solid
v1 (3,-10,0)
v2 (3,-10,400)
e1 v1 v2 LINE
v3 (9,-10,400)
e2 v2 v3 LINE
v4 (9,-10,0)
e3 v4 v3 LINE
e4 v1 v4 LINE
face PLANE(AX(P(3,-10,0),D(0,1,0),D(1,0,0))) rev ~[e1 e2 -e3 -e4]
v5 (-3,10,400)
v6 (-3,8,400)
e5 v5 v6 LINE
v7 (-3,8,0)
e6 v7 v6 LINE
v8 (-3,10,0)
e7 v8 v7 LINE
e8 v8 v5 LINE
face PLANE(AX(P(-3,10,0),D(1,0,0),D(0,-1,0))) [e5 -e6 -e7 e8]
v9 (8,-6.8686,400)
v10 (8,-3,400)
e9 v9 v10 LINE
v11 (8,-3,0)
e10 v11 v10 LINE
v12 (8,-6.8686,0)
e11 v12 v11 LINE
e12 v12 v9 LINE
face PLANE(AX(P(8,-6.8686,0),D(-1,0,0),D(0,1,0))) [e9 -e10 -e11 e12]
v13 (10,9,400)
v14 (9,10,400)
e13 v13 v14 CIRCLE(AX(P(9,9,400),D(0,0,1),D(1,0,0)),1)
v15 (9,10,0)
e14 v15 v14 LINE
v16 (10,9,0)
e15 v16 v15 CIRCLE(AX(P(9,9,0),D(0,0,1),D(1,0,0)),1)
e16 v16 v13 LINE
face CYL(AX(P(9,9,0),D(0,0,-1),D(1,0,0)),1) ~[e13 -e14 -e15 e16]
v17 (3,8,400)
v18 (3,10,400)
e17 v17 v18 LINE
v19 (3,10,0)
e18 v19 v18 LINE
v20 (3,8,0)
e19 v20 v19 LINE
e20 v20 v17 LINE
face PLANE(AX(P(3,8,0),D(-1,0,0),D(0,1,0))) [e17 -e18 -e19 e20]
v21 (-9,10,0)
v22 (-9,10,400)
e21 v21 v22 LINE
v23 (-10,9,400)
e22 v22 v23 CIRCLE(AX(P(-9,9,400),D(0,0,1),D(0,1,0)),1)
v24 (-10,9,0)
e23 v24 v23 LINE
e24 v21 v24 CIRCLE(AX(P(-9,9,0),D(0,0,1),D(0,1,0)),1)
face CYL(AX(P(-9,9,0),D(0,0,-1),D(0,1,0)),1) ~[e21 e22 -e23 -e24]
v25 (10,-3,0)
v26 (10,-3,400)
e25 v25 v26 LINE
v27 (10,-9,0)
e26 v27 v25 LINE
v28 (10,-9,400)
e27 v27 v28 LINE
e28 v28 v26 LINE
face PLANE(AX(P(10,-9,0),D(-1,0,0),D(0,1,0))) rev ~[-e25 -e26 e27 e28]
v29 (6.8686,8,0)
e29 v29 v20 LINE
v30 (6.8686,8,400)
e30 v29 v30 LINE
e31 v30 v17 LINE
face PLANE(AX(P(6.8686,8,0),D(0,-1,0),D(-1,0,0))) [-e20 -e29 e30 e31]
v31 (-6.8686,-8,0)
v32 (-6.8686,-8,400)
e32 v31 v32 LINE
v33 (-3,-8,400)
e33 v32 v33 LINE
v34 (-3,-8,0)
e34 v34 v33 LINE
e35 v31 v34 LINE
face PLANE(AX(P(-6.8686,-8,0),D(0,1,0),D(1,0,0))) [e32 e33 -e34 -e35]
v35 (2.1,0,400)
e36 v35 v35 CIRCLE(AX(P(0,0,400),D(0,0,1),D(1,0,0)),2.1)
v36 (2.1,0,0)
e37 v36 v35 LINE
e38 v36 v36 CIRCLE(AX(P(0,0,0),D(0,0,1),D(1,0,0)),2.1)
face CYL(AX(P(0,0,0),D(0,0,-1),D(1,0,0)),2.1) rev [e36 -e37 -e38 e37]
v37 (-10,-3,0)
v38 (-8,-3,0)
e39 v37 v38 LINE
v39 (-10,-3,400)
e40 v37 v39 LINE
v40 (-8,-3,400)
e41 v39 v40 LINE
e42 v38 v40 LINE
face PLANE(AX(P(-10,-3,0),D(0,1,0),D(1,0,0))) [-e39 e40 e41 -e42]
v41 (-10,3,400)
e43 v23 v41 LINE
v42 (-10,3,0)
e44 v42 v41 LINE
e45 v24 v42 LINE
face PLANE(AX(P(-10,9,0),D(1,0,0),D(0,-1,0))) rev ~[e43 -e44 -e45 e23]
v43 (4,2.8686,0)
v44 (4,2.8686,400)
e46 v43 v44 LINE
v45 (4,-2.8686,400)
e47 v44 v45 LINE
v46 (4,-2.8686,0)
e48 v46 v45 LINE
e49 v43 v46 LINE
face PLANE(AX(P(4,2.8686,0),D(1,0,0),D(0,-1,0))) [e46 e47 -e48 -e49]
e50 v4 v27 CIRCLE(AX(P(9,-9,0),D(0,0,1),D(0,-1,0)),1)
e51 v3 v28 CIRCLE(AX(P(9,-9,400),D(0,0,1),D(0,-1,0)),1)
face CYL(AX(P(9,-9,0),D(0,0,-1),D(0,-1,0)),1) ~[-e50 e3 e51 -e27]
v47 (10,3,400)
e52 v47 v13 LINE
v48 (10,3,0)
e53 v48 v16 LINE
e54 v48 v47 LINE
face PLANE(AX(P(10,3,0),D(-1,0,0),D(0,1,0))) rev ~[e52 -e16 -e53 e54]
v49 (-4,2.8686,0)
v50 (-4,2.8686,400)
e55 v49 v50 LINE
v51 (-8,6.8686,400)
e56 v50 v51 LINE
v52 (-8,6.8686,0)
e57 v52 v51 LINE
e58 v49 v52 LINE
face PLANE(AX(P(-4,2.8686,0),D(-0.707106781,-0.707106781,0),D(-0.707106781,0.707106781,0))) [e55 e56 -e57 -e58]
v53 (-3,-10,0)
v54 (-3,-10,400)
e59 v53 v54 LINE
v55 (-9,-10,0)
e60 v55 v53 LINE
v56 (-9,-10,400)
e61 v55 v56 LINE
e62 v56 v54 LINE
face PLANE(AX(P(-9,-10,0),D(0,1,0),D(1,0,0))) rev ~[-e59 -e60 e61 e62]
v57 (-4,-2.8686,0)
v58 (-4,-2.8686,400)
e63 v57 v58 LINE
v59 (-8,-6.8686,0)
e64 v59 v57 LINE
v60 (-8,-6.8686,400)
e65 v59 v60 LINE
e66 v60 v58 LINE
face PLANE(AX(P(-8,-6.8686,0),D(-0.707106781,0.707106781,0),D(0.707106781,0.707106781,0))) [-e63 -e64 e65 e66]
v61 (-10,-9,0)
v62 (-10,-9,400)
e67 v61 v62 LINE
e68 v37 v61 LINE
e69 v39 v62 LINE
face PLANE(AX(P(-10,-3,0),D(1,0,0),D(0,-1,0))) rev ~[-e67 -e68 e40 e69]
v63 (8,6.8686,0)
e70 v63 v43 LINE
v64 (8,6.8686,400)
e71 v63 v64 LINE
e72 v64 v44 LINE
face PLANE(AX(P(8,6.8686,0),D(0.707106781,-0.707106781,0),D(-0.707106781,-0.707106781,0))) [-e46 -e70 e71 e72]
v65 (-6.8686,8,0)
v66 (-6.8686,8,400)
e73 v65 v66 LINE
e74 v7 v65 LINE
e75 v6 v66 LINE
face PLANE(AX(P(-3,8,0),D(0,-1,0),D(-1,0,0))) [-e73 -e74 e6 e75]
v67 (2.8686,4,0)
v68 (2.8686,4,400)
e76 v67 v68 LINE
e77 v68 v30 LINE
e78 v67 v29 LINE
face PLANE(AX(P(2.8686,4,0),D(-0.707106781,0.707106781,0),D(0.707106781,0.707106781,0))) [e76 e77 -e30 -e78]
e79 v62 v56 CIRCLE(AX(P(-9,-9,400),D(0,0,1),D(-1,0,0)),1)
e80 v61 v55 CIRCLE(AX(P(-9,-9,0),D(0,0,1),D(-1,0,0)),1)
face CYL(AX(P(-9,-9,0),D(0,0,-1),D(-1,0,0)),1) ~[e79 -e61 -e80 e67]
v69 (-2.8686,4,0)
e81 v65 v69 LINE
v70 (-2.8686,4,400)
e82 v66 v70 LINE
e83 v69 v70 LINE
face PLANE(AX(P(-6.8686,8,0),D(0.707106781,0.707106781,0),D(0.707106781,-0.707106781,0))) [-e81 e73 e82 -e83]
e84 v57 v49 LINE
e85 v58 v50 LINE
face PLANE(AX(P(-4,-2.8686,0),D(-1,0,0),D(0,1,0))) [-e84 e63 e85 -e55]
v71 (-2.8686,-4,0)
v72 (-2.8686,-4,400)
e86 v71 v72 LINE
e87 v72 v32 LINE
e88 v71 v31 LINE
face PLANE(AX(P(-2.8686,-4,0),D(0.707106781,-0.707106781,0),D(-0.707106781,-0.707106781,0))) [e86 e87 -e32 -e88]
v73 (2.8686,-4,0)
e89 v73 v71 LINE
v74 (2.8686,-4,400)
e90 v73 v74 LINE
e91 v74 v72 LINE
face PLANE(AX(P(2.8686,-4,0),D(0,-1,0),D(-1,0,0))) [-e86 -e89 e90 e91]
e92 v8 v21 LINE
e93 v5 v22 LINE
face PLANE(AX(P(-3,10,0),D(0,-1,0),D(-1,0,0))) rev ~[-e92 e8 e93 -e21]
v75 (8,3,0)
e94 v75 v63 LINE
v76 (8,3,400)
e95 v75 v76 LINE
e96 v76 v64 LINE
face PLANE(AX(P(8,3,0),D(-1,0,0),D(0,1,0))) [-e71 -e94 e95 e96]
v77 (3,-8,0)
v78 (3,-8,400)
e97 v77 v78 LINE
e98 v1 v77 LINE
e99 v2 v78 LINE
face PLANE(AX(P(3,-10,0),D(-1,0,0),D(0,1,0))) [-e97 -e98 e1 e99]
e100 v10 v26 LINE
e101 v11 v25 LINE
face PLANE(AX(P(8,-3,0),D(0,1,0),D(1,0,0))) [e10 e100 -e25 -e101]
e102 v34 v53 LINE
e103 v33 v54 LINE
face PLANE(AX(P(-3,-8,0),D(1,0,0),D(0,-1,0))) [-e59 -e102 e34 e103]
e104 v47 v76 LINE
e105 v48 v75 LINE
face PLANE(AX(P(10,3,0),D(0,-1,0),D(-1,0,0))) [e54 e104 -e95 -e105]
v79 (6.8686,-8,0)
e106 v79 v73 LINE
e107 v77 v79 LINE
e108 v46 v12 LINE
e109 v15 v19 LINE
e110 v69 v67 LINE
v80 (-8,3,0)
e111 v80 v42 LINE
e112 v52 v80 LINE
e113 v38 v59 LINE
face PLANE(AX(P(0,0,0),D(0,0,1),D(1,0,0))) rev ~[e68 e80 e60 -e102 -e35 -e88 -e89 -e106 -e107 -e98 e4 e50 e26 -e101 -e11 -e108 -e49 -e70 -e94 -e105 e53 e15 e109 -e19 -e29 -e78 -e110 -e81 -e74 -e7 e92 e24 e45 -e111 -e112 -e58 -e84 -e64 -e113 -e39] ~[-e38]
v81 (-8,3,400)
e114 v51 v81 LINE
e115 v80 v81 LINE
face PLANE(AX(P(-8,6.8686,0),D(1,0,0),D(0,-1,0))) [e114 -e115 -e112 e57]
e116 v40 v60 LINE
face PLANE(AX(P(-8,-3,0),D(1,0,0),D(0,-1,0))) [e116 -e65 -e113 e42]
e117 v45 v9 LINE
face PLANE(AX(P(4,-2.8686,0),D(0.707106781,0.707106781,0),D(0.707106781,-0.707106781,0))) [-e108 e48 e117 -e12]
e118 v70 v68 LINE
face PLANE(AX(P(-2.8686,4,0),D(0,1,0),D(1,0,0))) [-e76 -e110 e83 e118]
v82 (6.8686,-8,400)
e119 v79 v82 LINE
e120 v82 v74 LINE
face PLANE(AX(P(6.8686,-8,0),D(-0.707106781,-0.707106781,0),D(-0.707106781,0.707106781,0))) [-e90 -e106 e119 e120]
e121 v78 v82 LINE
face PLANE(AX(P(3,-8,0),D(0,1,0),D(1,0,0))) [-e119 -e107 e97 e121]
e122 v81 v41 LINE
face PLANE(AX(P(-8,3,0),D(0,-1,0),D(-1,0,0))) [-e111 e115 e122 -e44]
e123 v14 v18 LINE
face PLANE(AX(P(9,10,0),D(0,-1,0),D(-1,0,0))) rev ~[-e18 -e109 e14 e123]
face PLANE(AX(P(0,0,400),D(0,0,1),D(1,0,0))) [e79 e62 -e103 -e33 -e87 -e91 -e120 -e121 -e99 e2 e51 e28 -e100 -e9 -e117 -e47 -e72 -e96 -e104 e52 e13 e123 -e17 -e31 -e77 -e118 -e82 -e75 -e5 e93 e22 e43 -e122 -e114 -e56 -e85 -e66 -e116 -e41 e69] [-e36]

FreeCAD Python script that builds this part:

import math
import FreeCAD as App
import Part
import Sketcher
from FreeCAD import Vector
Q = App.Units.Quantity

doc = App.newDocument("Part")
body = doc.addObject("PartDesign::Body", "Body")

sketch1 = doc.addObject("Sketcher::SketchObject", "Sketch")
body.addObject(sketch1)
sketch1.AttachmentSupport = (doc.XY_Plane, [""])
sketch1.MapMode = "FlatFace"
sketch1.addGeometry([
    Part.LineSegment(Vector(8, 3, 0), Vector(10, 3, 0)),
    Part.LineSegment(Vector(10, 3, 0), Vector(10, 9, 0)),
    Part.ArcOfCircle(Part.Circle(Vector(9, 9, 0), Vector(0, 0, 1), 1), math.radians(0), math.radians(90)),
    Part.LineSegment(Vector(9, 10, 0), Vector(3, 10, 0)),
    Part.LineSegment(Vector(3, 10, 0), Vector(3, 8, 0)),
    Part.LineSegment(Vector(3, 8, 0), Vector(6.9, 8, 0)),
    Part.LineSegment(Vector(6.9, 8, 0), Vector(2.9, 4, 0)),
    Part.LineSegment(Vector(2.9, 4, 0), Vector(-2.9, 4, 0)),
    Part.LineSegment(Vector(-2.9, 4, 0), Vector(-6.9, 8, 0)),
    Part.LineSegment(Vector(-6.9, 8, 0), Vector(-3, 8, 0)),
    Part.LineSegment(Vector(-3, 8, 0), Vector(-3, 10, 0)),
    Part.LineSegment(Vector(-3, 10, 0), Vector(-9, 10, 0)),
    Part.ArcOfCircle(Part.Circle(Vector(-9, 9, 0), Vector(0, 0, 1), 1), math.radians(90), math.radians(180)),
    Part.LineSegment(Vector(-10, 9, 0), Vector(-10, 3, 0)),
    Part.LineSegment(Vector(-10, 3, 0), Vector(-8, 3, 0)),
    Part.LineSegment(Vector(-8, 3, 0), Vector(-8, 6.9, 0)),
    Part.LineSegment(Vector(-8, 6.9, 0), Vector(-4, 2.9, 0)),
    Part.LineSegment(Vector(-4, 2.9, 0), Vector(-4, -2.9, 0)),
    Part.LineSegment(Vector(-4, -2.9, 0), Vector(-8, -6.9, 0)),
    Part.LineSegment(Vector(-8, -6.9, 0), Vector(-8, -3, 0)),
    Part.LineSegment(Vector(-8, -3, 0), Vector(-10, -3, 0)),
    Part.LineSegment(Vector(-10, -3, 0), Vector(-10, -9, 0)),
    Part.ArcOfCircle(Part.Circle(Vector(-9, -9, 0), Vector(0, 0, 1), 1), math.radians(180), math.radians(270)),
    Part.LineSegment(Vector(-9, -10, 0), Vector(-3, -10, 0)),
    Part.LineSegment(Vector(-3, -10, 0), Vector(-3, -8, 0)),
    Part.LineSegment(Vector(-3, -8, 0), Vector(-6.9, -8, 0)),
    Part.LineSegment(Vector(-6.9, -8, 0), Vector(-2.9, -4, 0)),
    Part.LineSegment(Vector(-2.9, -4, 0), Vector(2.9, -4, 0)),
    Part.LineSegment(Vector(2.9, -4, 0), Vector(6.9, -8, 0)),
    Part.LineSegment(Vector(6.9, -8, 0), Vector(3, -8, 0)),
    Part.LineSegment(Vector(3, -8, 0), Vector(3, -10, 0)),
    Part.LineSegment(Vector(3, -10, 0), Vector(9, -10, 0)),
    Part.ArcOfCircle(Part.Circle(Vector(9, -9, 0), Vector(0, 0, 1), 1), math.radians(-90), math.radians(0)),
    Part.LineSegment(Vector(10, -9, 0), Vector(10, -3, 0)),
    Part.LineSegment(Vector(10, -3, 0), Vector(8, -3, 0)),
    Part.LineSegment(Vector(8, -3, 0), Vector(8, -6.9, 0)),
    Part.LineSegment(Vector(8, -6.9, 0), Vector(4, -2.9, 0)),
    Part.LineSegment(Vector(4, -2.9, 0), Vector(4, 2.9, 0)),
    Part.LineSegment(Vector(4, 2.9, 0), Vector(8, 6.9, 0)),
    Part.LineSegment(Vector(8, 6.9, 0), Vector(8, 3, 0)),
    Part.Circle(Vector(0, 0, 0), Vector(0, 0, 1), 2.1),
], False)
sketch1.addConstraint([
    Sketcher.Constraint("Coincident", 0, 2, 1, 1),
    Sketcher.Constraint("Tangent", 1, 2, 2, 1),
    Sketcher.Constraint("Tangent", 2, 2, 3, 1),
    Sketcher.Constraint("Coincident", 3, 2, 4, 1),
    Sketcher.Constraint("Coincident", 4, 2, 5, 1),
    Sketcher.Constraint("Coincident", 5, 2, 6, 1),
    Sketcher.Constraint("Coincident", 6, 2, 7, 1),
    Sketcher.Constraint("Coincident", 7, 2, 8, 1),
    Sketcher.Constraint("Coincident", 8, 2, 9, 1),
    Sketcher.Constraint("Coincident", 9, 2, 10, 1),
    Sketcher.Constraint("Coincident", 10, 2, 11, 1),
    Sketcher.Constraint("Tangent", 11, 2, 12, 1),
    Sketcher.Constraint("Tangent", 12, 2, 13, 1),
    Sketcher.Constraint("Coincident", 13, 2, 14, 1),
    Sketcher.Constraint("Coincident", 14, 2, 15, 1),
    Sketcher.Constraint("Coincident", 15, 2, 16, 1),
    Sketcher.Constraint("Coincident", 16, 2, 17, 1),
    Sketcher.Constraint("Coincident", 17, 2, 18, 1),
    Sketcher.Constraint("Coincident", 18, 2, 19, 1),
    Sketcher.Constraint("Coincident", 19, 2, 20, 1),
    Sketcher.Constraint("Coincident", 20, 2, 21, 1),
    Sketcher.Constraint("Tangent", 21, 2, 22, 1),
    Sketcher.Constraint("Tangent", 22, 2, 23, 1),
    Sketcher.Constraint("Coincident", 23, 2, 24, 1),
    Sketcher.Constraint("Coincident", 24, 2, 25, 1),
    Sketcher.Constraint("Coincident", 25, 2, 26, 1),
    Sketcher.Constraint("Coincident", 26, 2, 27, 1),
    Sketcher.Constraint("Coincident", 27, 2, 28, 1),
    Sketcher.Constraint("Coincident", 28, 2, 29, 1),
    Sketcher.Constraint("Coincident", 29, 2, 30, 1),
    Sketcher.Constraint("Coincident", 30, 2, 31, 1),
    Sketcher.Constraint("Tangent", 31, 2, 32, 1),
    Sketcher.Constraint("Tangent", 32, 2, 33, 1),
    Sketcher.Constraint("Coincident", 33, 2, 34, 1),
    Sketcher.Constraint("Coincident", 34, 2, 35, 1),
    Sketcher.Constraint("Coincident", 35, 2, 36, 1),
    Sketcher.Constraint("Coincident", 36, 2, 37, 1),
    Sketcher.Constraint("Coincident", 37, 2, 38, 1),
    Sketcher.Constraint("Coincident", 38, 2, 39, 1),
    Sketcher.Constraint("Coincident", 39, 2, 0, 1),
    Sketcher.Constraint("Horizontal", 0),
    Sketcher.Constraint("Vertical", 1),
    Sketcher.Constraint("Horizontal", 3),
    Sketcher.Constraint("Vertical", 4),
    Sketcher.Constraint("Horizontal", 5),
    Sketcher.Constraint("Horizontal", 7),
    Sketcher.Constraint("Horizontal", 9),
    Sketcher.Constraint("Vertical", 10),
    Sketcher.Constraint("Horizontal", 11),
    Sketcher.Constraint("Vertical", 13),
    Sketcher.Constraint("Horizontal", 14),
    Sketcher.Constraint("Vertical", 15),
    Sketcher.Constraint("Vertical", 17),
    Sketcher.Constraint("Vertical", 19),
    Sketcher.Constraint("Horizontal", 20),
    Sketcher.Constraint("Vertical", 21),
    Sketcher.Constraint("Horizontal", 23),
    Sketcher.Constraint("Vertical", 24),
    Sketcher.Constraint("Horizontal", 25),
    Sketcher.Constraint("Horizontal", 27),
    Sketcher.Constraint("Horizontal", 29),
    Sketcher.Constraint("Vertical", 30),
    Sketcher.Constraint("Horizontal", 31),
    Sketcher.Constraint("Vertical", 33),
    Sketcher.Constraint("Horizontal", 34),
    Sketcher.Constraint("Vertical", 35),
    Sketcher.Constraint("Vertical", 37),
    Sketcher.Constraint("Vertical", 39),
    Sketcher.Constraint("Coincident", 40, 3, -1, 1),
    Sketcher.Constraint("Equal", 2, 12),
    Sketcher.Constraint("Equal", 12, 22),
    Sketcher.Constraint("Equal", 22, 32),
    Sketcher.Constraint("Symmetric", 2, 3, 22, 3, -1, 1),
    Sketcher.Constraint("Symmetric", 12, 3, 32, 3, -1, 1),
    Sketcher.Constraint("Symmetric", 4, 2, 24, 2, -1, 1),
    Sketcher.Constraint("Symmetric", 6, 2, 26, 2, -1, 1),
    Sketcher.Constraint("Symmetric", 8, 2, 28, 2, -1, 1),
    Sketcher.Constraint("Symmetric", 14, 2, 34, 2, -1, 1),
    Sketcher.Constraint("Symmetric", 16, 2, 36, 2, -1, 1),
    Sketcher.Constraint("Symmetric", 18, 2, 38, 2, -1, 1),
    Sketcher.Constraint("Symmetric", 2, 3, 12, 3, -2),
    Sketcher.Constraint("Symmetric", 5, 2, 8, 2, -2),
    Sketcher.Constraint("Symmetric", 19, 2, 34, 2, -2),
    Sketcher.Constraint("Perpendicular", 6, 8),
    Sketcher.Constraint("Parallel", 8, 16),
    Sketcher.Constraint("Perpendicular", 16, 18),
    Sketcher.Constraint("Parallel", 18, 26),
    Sketcher.Constraint("Perpendicular", 26, 28),
    Sketcher.Constraint("Parallel", 28, 36),
    Sketcher.Constraint("Perpendicular", 36, 38),
    Sketcher.Constraint("Horizontal", 0, 2, 13, 2),
    Sketcher.Constraint("Horizontal", 18, 2, 35, 2),
    Sketcher.Constraint("Horizontal", 17, 2, 36, 2),
    Sketcher.Constraint("Vertical", 10, 2, 23, 2),
    Sketcher.Constraint("Vertical", 4, 2, 29, 2),
    Sketcher.Constraint("Equal", 31, 1),
    Sketcher.Constraint("Equal", 34, 4),
    Sketcher.Constraint("Equal", 29, 15),
    Sketcher.Constraint("Equal", 27, 17),
    Sketcher.Constraint("Equal", 8, 16),
    Sketcher.Constraint("Radius", 2, Q("1 mm")),
    Sketcher.Constraint("Diameter", 40, Q("4.2 mm")),
    Sketcher.Constraint("DistanceX", 0, 1, 0, 2, Q("2 mm")),
    Sketcher.Constraint("DistanceX", 3, 2, 3, 1, Q("6 mm")),
    Sketcher.Constraint("DistanceY", -1, 1, 6, 2, Q("4 mm")),
    Sketcher.Constraint("DistanceY", 6, 2, 4, 2, Q("4 mm")),
    Sketcher.Constraint("DistanceX", 5, 1, 5, 2, Q("3.8686 mm")),
])
pad1 = doc.addObject("PartDesign::Pad", "Pad")
body.addObject(pad1)
pad1.Profile = sketch1
pad1.Length = 400

doc.recompute()
